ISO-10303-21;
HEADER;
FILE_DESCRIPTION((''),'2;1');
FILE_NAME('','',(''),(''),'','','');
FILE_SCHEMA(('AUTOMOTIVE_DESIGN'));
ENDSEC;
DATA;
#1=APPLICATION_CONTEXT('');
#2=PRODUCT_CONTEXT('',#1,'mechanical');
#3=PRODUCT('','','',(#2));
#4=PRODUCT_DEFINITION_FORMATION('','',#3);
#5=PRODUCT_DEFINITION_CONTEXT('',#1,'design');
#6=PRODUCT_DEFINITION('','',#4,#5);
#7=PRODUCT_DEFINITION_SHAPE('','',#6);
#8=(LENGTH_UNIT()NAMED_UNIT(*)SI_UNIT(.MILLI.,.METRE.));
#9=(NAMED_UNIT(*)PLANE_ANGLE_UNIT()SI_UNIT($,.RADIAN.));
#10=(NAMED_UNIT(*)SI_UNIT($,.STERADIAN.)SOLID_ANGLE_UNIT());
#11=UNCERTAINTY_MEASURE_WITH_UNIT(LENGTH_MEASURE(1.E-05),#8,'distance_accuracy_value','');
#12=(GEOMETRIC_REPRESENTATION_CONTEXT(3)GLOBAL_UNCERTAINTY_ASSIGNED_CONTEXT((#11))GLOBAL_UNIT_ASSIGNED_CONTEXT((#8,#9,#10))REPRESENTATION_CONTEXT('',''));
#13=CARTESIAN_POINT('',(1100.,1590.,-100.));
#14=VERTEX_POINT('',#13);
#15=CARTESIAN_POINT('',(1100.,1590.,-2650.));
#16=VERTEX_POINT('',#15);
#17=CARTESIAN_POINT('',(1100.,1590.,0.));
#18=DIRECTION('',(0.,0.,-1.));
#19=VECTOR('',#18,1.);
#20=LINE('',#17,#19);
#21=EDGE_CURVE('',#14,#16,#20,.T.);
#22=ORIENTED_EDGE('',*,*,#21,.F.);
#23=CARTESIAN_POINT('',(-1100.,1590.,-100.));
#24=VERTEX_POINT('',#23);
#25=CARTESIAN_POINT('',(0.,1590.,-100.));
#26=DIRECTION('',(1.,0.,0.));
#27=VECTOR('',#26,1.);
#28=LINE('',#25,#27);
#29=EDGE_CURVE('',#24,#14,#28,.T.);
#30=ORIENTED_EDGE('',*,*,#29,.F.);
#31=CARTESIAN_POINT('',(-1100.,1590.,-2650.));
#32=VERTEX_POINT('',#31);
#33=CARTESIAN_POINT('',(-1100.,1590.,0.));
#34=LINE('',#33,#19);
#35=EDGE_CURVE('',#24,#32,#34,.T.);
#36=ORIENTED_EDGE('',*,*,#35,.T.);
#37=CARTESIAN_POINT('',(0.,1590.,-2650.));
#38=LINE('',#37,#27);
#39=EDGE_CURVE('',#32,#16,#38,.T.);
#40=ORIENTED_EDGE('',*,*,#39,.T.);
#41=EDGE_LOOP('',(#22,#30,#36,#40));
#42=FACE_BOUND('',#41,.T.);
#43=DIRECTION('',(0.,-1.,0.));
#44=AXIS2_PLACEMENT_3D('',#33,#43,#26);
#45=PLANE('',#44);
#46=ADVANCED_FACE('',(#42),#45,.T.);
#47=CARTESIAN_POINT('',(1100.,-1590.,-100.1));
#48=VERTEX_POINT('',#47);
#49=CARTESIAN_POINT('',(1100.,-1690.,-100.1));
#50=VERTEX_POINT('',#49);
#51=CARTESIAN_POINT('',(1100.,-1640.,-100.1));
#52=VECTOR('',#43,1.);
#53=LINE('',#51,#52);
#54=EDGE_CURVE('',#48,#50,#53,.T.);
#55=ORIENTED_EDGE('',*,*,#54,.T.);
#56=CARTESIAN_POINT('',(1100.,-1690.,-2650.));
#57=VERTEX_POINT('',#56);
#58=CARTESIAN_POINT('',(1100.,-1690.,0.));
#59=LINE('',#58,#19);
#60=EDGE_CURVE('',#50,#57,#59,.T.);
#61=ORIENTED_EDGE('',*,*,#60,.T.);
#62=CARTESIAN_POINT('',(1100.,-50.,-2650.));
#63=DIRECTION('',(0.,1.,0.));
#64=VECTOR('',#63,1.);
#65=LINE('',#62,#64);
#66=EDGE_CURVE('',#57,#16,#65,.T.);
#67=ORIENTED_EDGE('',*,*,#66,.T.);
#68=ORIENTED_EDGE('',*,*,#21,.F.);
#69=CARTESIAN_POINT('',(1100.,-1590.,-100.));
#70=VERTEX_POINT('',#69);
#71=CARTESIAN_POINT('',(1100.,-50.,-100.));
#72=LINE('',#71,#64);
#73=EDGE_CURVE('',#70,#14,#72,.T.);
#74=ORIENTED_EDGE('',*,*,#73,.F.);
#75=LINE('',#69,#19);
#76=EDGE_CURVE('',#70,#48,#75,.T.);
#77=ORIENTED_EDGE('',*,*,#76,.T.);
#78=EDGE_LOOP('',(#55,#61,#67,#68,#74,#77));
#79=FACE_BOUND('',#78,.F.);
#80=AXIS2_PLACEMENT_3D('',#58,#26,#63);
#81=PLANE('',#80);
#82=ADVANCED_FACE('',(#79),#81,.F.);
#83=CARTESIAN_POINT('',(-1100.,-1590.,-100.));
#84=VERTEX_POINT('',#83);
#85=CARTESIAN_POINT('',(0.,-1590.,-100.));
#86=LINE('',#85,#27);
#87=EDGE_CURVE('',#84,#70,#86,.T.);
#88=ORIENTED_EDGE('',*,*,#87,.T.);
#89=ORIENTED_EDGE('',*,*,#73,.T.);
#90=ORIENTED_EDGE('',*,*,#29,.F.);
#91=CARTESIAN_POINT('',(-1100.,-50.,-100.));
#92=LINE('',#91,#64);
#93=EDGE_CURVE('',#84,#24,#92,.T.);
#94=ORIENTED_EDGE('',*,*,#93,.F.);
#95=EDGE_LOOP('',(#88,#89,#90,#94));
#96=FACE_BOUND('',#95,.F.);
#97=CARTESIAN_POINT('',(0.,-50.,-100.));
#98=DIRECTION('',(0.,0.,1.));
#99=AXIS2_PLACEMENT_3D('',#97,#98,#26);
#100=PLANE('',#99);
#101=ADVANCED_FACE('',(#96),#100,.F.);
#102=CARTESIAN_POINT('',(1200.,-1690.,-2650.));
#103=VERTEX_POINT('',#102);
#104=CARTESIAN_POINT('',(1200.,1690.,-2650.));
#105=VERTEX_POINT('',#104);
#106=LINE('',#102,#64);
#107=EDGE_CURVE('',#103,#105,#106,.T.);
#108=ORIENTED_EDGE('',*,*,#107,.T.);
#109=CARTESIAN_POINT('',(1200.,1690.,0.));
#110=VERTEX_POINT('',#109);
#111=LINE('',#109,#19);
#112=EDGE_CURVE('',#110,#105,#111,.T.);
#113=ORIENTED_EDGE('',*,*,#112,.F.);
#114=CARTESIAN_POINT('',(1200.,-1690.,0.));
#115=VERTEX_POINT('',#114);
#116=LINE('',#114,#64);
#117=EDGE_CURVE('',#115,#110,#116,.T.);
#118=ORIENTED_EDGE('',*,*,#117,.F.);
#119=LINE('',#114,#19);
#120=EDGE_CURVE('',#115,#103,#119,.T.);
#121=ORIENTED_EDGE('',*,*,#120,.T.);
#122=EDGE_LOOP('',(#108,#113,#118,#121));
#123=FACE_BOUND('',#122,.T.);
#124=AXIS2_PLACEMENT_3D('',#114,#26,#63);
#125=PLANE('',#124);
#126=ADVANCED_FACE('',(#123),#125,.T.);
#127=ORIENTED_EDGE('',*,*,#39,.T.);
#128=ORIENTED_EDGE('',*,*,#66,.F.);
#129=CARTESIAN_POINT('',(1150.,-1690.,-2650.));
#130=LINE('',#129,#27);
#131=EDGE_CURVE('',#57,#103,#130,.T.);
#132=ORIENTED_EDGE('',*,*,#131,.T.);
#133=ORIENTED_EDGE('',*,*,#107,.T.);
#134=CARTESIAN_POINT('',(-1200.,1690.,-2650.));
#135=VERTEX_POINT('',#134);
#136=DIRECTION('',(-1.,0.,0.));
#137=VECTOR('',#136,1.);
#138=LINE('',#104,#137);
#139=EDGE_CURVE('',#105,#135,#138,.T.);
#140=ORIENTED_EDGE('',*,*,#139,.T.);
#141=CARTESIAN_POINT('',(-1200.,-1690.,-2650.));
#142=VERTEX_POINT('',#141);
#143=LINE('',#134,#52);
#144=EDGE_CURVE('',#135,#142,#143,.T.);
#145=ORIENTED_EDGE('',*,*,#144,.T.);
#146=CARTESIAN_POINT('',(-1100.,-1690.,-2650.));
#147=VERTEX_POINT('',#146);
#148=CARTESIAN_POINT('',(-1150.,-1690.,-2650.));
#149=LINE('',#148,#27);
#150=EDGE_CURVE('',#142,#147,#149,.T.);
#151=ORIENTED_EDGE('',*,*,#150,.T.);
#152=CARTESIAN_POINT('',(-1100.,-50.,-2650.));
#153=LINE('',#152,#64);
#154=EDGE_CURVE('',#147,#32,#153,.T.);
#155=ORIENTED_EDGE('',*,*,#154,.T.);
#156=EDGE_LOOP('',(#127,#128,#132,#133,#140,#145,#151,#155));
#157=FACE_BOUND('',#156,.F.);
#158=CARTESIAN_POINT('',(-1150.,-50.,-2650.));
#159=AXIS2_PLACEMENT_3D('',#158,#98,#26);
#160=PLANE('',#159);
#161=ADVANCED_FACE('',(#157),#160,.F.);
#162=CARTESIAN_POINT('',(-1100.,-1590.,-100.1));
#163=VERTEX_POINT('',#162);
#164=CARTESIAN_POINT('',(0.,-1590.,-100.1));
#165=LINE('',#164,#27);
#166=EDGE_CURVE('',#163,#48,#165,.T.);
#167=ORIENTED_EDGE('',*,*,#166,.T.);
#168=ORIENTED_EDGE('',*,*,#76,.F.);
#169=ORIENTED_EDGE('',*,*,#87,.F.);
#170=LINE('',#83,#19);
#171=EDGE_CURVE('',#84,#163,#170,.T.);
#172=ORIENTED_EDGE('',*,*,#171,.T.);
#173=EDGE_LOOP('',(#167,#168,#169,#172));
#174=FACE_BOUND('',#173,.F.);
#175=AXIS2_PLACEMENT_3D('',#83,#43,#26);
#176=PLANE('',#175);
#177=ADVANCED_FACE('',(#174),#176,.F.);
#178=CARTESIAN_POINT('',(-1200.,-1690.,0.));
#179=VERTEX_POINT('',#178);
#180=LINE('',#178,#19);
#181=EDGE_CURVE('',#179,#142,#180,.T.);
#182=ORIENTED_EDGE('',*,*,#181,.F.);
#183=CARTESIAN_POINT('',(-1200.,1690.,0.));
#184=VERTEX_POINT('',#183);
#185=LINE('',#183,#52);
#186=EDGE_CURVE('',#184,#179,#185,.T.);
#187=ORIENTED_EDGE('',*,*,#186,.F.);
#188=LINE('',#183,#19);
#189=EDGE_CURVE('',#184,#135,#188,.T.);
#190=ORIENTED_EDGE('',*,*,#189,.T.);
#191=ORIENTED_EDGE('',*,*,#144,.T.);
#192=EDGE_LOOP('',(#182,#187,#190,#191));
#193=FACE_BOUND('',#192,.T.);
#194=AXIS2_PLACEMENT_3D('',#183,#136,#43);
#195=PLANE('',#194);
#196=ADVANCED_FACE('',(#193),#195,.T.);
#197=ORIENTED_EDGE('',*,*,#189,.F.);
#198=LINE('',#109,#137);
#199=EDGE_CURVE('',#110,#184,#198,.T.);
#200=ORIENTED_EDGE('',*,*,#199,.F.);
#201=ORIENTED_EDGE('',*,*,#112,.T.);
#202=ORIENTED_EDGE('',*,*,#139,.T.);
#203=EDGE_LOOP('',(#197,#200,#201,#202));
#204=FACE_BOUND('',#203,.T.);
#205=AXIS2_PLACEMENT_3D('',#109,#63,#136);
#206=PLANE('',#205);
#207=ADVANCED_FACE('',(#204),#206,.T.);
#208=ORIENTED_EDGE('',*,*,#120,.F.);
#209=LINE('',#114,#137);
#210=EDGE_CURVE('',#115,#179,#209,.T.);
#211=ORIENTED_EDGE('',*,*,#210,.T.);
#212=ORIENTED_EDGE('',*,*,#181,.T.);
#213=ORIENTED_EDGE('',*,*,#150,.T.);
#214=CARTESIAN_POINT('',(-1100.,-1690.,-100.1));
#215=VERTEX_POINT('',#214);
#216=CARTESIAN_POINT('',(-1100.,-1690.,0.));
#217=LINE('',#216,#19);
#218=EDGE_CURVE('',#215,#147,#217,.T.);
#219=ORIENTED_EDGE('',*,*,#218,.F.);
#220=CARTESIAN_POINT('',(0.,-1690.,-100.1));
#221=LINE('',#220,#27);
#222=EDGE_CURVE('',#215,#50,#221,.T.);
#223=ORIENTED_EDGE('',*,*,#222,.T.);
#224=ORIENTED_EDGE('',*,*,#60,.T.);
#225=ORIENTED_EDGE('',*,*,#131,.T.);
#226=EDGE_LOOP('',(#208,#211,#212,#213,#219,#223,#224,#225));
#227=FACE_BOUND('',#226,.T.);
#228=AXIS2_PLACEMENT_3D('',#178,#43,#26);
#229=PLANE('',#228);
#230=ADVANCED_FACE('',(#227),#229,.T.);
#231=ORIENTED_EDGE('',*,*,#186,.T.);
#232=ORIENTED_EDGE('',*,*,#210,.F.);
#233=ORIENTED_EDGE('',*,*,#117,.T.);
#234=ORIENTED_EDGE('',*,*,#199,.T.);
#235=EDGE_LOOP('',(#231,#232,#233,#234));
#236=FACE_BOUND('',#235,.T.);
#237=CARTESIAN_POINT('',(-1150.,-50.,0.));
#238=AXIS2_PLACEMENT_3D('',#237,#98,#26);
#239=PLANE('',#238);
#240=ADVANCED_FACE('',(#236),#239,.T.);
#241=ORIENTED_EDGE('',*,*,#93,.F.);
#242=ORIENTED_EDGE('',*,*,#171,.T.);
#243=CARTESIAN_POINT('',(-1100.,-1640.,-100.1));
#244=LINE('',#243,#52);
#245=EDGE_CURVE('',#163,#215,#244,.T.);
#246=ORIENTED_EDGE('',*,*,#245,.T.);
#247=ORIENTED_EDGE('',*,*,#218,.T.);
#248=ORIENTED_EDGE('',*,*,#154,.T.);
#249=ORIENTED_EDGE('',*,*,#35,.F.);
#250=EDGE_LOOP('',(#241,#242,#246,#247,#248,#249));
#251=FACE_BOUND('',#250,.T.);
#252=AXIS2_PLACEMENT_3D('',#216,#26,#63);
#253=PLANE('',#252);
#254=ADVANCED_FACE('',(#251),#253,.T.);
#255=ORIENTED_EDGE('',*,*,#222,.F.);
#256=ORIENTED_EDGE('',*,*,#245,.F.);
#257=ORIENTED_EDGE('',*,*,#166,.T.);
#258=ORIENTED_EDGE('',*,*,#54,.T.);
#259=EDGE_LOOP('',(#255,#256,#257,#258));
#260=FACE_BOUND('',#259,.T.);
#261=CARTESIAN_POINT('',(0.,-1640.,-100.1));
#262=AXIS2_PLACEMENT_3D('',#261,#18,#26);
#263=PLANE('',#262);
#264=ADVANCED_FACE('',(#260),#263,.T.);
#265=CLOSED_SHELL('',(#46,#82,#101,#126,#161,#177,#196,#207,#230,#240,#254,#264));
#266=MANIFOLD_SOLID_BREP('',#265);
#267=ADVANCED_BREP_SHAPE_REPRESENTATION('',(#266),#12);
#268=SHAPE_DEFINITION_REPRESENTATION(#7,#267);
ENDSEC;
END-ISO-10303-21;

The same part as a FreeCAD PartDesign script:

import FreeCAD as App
import Part
import Sketcher
from FreeCAD import Vector


def add_polygon(sketch, points):
    """Adds a closed chain of lines whose ends are joined by coincident constraints."""
    first, n = sketch.GeometryCount, len(points)
    for a, b in zip(points, points[1:] + points[:1]):
        sketch.addGeometry(Part.LineSegment(App.Vector(*a, 0), App.Vector(*b, 0)), False)
    for i in range(n):
        sketch.addConstraint(Sketcher.Constraint("Coincident", first + i, 2, first + (i + 1) % n, 1))

doc = App.newDocument("Part")
body = doc.addObject("PartDesign::Body", "Body")

sketch1 = body.newObject("Sketcher::SketchObject", "Sketch")
sketch1.AttachmentSupport = (doc.getObject("XY_Plane"), [""])
sketch1.MapMode = "FlatFace"
add_polygon(sketch1, [(-1100, 1590), (-1100, -1690), (1100, -1690), (1100, 1590)])
sketch1.addConstraint([
    Sketcher.Constraint("Vertical", 0),
    Sketcher.Constraint("Horizontal", 1),
    Sketcher.Constraint("Vertical", 2),
    Sketcher.Constraint("Horizontal", 3),
    Sketcher.Constraint("DistanceX", 1, 1, 1, 2, 2200.0),
    Sketcher.Constraint("DistanceY", 0, 2, 0, 1, 3280.0),
    Sketcher.Constraint("DistanceX", 0, 2, -1, 1, 1100.0),
    Sketcher.Constraint("DistanceY", 0, 2, -1, 1, 1690.0),
])
pad1 = body.newObject("PartDesign::Pad", "Pad")
pad1.Profile = sketch1
pad1.Length = 100
pad1.Reversed = True

sketch2 = body.newObject("Sketcher::SketchObject", "Sketch001")
sketch2.AttachmentSupport = (doc.getObject("XY_Plane"), [""])
sketch2.MapMode = "FlatFace"
add_polygon(sketch2, [(-1200, -1690), (-1100, -1690), (-1100, 1590), (1100, 1590), (1100, -1690), (1200, -1690), (1200, 1690), (-1200, 1690)])
sketch2.addConstraint([
    Sketcher.Constraint("Horizontal", 0),
    Sketcher.Constraint("Vertical", 1),
    Sketcher.Constraint("Horizontal", 2),
    Sketcher.Constraint("Vertical", 3),
    Sketcher.Constraint("Horizontal", 4),
    Sketcher.Constraint("Vertical", 5),
    Sketcher.Constraint("Horizontal", 6),
    Sketcher.Constraint("Vertical", 7),
    Sketcher.Constraint("Symmetric", 4, 2, 6, 2, -1, 1),
    Sketcher.Constraint("Symmetric", 0, 2, 3, 2, -2),
    Sketcher.Constraint("DistanceX", 0, 1, 0, 2, 100.0),
    Sketcher.Constraint("DistanceX", 2, 1, 2, 2, 2200.0),
    Sketcher.Constraint("DistanceY", 1, 1, 1, 2, 3280.0),
    Sketcher.Constraint("DistanceY", 5, 1, 5, 2, 3380.0),
])
pad2 = body.newObject("PartDesign::Pad", "Pad001")
pad2.Profile = sketch2
pad2.Length = 2650
pad2.Reversed = True

sketch3 = body.newObject("Sketcher::SketchObject", "Sketch002")
sketch3.AttachmentSupport = (doc.getObject("XY_Plane"), [""])
sketch3.MapMode = "FlatFace"
sketch3.AttachmentOffset = App.Placement(Vector(0, 0, -100), App.Rotation())
add_polygon(sketch3, [(-1100, -1690), (-1100, -1590), (1100, -1590), (1100, -1690)])
sketch3.addConstraint([
    Sketcher.Constraint("Vertical", 0),
    Sketcher.Constraint("Horizontal", 1),
    Sketcher.Constraint("Vertical", 2),
    Sketcher.Constraint("Horizontal", 3),
    Sketcher.Constraint("DistanceX", 1, 1, 1, 2, 2200.0),
    Sketcher.Constraint("DistanceY", 0, 1, 0, 2, 100.0),
    Sketcher.Constraint("DistanceX", 0, 2, -1, 1, 1100.0),
    Sketcher.Constraint("DistanceY", 0, 2, -1, 1, 1590.0),
])
pad3 = body.newObject("PartDesign::Pad", "Pad002")
pad3.Profile = sketch3
pad3.Length = 0.1
pad3.Reversed = True

doc.recompute()
